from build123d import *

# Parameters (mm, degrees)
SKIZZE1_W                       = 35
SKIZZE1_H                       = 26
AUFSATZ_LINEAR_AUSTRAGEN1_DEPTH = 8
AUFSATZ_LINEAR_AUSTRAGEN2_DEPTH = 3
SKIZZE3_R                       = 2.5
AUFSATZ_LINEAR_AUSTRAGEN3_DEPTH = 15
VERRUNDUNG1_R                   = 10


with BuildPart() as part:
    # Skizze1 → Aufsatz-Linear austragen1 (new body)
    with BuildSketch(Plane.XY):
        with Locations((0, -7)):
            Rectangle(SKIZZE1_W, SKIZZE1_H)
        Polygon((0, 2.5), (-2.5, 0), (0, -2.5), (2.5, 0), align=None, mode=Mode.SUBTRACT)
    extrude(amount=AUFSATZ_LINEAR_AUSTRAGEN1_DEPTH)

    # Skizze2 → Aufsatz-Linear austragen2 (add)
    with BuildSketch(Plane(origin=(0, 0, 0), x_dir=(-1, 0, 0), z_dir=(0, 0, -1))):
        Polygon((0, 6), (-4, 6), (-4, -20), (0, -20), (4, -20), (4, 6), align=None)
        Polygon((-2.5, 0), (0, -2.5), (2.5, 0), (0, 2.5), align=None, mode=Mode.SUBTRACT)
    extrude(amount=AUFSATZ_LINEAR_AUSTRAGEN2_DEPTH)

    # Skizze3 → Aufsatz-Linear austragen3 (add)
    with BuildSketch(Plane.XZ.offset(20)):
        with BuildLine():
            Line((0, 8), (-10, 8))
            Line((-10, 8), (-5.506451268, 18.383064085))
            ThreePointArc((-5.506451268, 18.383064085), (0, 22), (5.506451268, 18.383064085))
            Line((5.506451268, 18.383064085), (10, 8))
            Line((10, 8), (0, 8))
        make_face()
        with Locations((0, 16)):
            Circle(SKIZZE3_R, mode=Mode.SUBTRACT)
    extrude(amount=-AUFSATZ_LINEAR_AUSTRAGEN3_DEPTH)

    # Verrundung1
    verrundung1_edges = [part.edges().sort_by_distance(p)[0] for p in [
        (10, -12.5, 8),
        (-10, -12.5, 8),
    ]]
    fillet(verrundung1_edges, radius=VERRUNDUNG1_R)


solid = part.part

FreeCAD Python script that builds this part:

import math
import FreeCAD as App
import Part
import Sketcher
Q = App.Units.Quantity


def edges_at(feature, points):
    """Names of the edges that pass closest to the given points."""
    edges = feature.Shape.Edges
    near = lambda p: min(range(len(edges)), key=lambda i: edges[i].distToShape(Part.Vertex(*p))[0])
    return sorted({f"Edge{near(p) + 1}" for p in points})


def add_polygon(sketch, points):
    """Adds a closed chain of lines whose ends are joined by coincident constraints."""
    first, n = sketch.GeometryCount, len(points)
    for a, b in zip(points, points[1:] + points[:1]):
        sketch.addGeometry(Part.LineSegment(App.Vector(*a, 0), App.Vector(*b, 0)), False)
    for i in range(n):
        sketch.addConstraint(Sketcher.Constraint("Coincident", first + i, 2, first + (i + 1) % n, 1))

doc = App.newDocument("Part")
body = doc.addObject("PartDesign::Body", "Body")

# Sketch on XY plane
sketch1 = body.newObject("Sketcher::SketchObject", "Sketch")
sketch1.AttachmentSupport = (doc.getObject("XY_Plane"), [""])
sketch1.MapMode = "FlatFace"
add_polygon(sketch1, [(-17.5, 6), (-17.5, -20), (17.5, -20), (17.5, 6)])  # lines 0-3
add_polygon(sketch1, [(-2.5, 0), (0, 2.5), (2.5, 0), (0, -2.5)])  # lines 4-7
sketch1.addConstraint([
    Sketcher.Constraint("Vertical", 0),
    Sketcher.Constraint("Horizontal", 1),
    Sketcher.Constraint("Vertical", 2),
    Sketcher.Constraint("Horizontal", 3),
    Sketcher.Constraint("Symmetric", 4, 2, 6, 2, -1, 1),
    Sketcher.Constraint("Symmetric", 5, 2, 7, 2, -1, 1),
    Sketcher.Constraint("PointOnObject", 4, 2, -2),
    Sketcher.Constraint("PointOnObject", 5, 2, -1),
    Sketcher.Constraint("Perpendicular", 4, 5),
    Sketcher.Constraint("DistanceX", 1, 1, 1, 2, Q("35 mm")),
    Sketcher.Constraint("DistanceY", 0, 2, 0, 1, Q("26 mm")),
    Sketcher.Constraint("DistanceY", 0, 2, -1, 1, Q("20 mm")),
    Sketcher.Constraint("DistanceX", 5, 2, 2, 2, Q("15 mm")),
    Sketcher.Constraint("DistanceY", 6, 2, 4, 2, Q("5 mm")),
])
pad1 = body.newObject("PartDesign::Pad", "Pad")
pad1.Profile = sketch1
pad1.Length = 8

# Sketch on XY plane
sketch2 = body.newObject("Sketcher::SketchObject", "Sketch001")
sketch2.AttachmentSupport = (doc.getObject("XY_Plane"), [""])
sketch2.MapMode = "FlatFace"
add_polygon(sketch2, [(4, 6), (4, -20), (-4, -20), (-4, 6)])  # lines 0-3
add_polygon(sketch2, [(0, -2.5), (2.5, 0), (0, 2.5), (-2.5, 0)])  # lines 4-7
sketch2.addConstraint([
    Sketcher.Constraint("Vertical", 0),
    Sketcher.Constraint("Horizontal", 1),
    Sketcher.Constraint("Vertical", 2),
    Sketcher.Constraint("Horizontal", 3),
    Sketcher.Constraint("Symmetric", 4, 2, 6, 2, -1, 1),
    Sketcher.Constraint("Symmetric", 5, 2, 7, 2, -1, 1),
    Sketcher.Constraint("PointOnObject", 4, 2, -1),
    Sketcher.Constraint("PointOnObject", 5, 2, -2),
    Sketcher.Constraint("Perpendicular", 4, 5),
    Sketcher.Constraint("DistanceX", 1, 2, 1, 1, Q("8 mm")),
    Sketcher.Constraint("DistanceY", 0, 2, 0, 1, Q("26 mm")),
    Sketcher.Constraint("DistanceX", -1, 1, 0, 2, Q("4 mm")),
    Sketcher.Constraint("DistanceY", 0, 2, -1, 1, Q("20 mm")),
    Sketcher.Constraint("DistanceX", 6, 2, 4, 2, Q("5 mm")),
])
pad2 = body.newObject("PartDesign::Pad", "Pad001")
pad2.Profile = sketch2
pad2.Length = 3
pad2.Reversed = True

# Sketch on XZ plane
sketch3 = body.newObject("Sketcher::SketchObject", "Sketch002")
sketch3.AttachmentSupport = (doc.getObject("XZ_Plane"), [""])
sketch3.MapMode = "FlatFace"
sketch3.AttachmentOffset = App.Placement(App.Vector(0, 0, 20), App.Rotation())
sketch3.addGeometry([
    Part.LineSegment(App.Vector(-5.5, 18.4, 0), App.Vector(-10, 8, 0)),  # 0
    Part.LineSegment(App.Vector(-10, 8, 0), App.Vector(10, 8, 0)),  # 1
    Part.LineSegment(App.Vector(10, 8, 0), App.Vector(5.5, 18.4, 0)),  # 2
    Part.ArcOfCircle(Part.Circle(App.Vector(0, 16, 0), App.Vector(0, 0, 1), 6), math.radians(23), math.radians(157)),  # 3
    Part.Circle(App.Vector(0, 16, 0), App.Vector(0, 0, 1), 2.5),  # 4
], False)
sketch3.addConstraint([
    Sketcher.Constraint("Coincident", 0, 2, 1, 1),
    Sketcher.Constraint("Coincident", 1, 2, 2, 1),
    Sketcher.Constraint("Tangent", 2, 2, 3, 1),
    Sketcher.Constraint("Tangent", 3, 2, 0, 1),
    Sketcher.Constraint("Horizontal", 1),
    Sketcher.Constraint("Coincident", 4, 3, 3, 3),
    Sketcher.Constraint("Symmetric", 2, 2, 3, 2, -2),
    Sketcher.Constraint("Diameter", 4, Q("5 mm")),
    Sketcher.Constraint("Radius", 3, Q("6 mm")),
    Sketcher.Constraint("DistanceX", 1, 1, 1, 2, Q("20 mm")),
    Sketcher.Constraint("DistanceY", -1, 1, 3, 3, Q("16 mm")),
    Sketcher.Constraint("DistanceY", -1, 1, 0, 2, Q("8 mm")),
])
pad3 = body.newObject("PartDesign::Pad", "Pad002")
pad3.Profile = sketch3
pad3.Length = 15
pad3.Reversed = True
doc.recompute()

fillet = body.newObject("PartDesign::Fillet", "Fillet")
fillet.Base = (pad3, edges_at(pad3, [(10, -12.5, 8), (-10, -12.5, 8)]))
fillet.Radius = 10

doc.recompute()
